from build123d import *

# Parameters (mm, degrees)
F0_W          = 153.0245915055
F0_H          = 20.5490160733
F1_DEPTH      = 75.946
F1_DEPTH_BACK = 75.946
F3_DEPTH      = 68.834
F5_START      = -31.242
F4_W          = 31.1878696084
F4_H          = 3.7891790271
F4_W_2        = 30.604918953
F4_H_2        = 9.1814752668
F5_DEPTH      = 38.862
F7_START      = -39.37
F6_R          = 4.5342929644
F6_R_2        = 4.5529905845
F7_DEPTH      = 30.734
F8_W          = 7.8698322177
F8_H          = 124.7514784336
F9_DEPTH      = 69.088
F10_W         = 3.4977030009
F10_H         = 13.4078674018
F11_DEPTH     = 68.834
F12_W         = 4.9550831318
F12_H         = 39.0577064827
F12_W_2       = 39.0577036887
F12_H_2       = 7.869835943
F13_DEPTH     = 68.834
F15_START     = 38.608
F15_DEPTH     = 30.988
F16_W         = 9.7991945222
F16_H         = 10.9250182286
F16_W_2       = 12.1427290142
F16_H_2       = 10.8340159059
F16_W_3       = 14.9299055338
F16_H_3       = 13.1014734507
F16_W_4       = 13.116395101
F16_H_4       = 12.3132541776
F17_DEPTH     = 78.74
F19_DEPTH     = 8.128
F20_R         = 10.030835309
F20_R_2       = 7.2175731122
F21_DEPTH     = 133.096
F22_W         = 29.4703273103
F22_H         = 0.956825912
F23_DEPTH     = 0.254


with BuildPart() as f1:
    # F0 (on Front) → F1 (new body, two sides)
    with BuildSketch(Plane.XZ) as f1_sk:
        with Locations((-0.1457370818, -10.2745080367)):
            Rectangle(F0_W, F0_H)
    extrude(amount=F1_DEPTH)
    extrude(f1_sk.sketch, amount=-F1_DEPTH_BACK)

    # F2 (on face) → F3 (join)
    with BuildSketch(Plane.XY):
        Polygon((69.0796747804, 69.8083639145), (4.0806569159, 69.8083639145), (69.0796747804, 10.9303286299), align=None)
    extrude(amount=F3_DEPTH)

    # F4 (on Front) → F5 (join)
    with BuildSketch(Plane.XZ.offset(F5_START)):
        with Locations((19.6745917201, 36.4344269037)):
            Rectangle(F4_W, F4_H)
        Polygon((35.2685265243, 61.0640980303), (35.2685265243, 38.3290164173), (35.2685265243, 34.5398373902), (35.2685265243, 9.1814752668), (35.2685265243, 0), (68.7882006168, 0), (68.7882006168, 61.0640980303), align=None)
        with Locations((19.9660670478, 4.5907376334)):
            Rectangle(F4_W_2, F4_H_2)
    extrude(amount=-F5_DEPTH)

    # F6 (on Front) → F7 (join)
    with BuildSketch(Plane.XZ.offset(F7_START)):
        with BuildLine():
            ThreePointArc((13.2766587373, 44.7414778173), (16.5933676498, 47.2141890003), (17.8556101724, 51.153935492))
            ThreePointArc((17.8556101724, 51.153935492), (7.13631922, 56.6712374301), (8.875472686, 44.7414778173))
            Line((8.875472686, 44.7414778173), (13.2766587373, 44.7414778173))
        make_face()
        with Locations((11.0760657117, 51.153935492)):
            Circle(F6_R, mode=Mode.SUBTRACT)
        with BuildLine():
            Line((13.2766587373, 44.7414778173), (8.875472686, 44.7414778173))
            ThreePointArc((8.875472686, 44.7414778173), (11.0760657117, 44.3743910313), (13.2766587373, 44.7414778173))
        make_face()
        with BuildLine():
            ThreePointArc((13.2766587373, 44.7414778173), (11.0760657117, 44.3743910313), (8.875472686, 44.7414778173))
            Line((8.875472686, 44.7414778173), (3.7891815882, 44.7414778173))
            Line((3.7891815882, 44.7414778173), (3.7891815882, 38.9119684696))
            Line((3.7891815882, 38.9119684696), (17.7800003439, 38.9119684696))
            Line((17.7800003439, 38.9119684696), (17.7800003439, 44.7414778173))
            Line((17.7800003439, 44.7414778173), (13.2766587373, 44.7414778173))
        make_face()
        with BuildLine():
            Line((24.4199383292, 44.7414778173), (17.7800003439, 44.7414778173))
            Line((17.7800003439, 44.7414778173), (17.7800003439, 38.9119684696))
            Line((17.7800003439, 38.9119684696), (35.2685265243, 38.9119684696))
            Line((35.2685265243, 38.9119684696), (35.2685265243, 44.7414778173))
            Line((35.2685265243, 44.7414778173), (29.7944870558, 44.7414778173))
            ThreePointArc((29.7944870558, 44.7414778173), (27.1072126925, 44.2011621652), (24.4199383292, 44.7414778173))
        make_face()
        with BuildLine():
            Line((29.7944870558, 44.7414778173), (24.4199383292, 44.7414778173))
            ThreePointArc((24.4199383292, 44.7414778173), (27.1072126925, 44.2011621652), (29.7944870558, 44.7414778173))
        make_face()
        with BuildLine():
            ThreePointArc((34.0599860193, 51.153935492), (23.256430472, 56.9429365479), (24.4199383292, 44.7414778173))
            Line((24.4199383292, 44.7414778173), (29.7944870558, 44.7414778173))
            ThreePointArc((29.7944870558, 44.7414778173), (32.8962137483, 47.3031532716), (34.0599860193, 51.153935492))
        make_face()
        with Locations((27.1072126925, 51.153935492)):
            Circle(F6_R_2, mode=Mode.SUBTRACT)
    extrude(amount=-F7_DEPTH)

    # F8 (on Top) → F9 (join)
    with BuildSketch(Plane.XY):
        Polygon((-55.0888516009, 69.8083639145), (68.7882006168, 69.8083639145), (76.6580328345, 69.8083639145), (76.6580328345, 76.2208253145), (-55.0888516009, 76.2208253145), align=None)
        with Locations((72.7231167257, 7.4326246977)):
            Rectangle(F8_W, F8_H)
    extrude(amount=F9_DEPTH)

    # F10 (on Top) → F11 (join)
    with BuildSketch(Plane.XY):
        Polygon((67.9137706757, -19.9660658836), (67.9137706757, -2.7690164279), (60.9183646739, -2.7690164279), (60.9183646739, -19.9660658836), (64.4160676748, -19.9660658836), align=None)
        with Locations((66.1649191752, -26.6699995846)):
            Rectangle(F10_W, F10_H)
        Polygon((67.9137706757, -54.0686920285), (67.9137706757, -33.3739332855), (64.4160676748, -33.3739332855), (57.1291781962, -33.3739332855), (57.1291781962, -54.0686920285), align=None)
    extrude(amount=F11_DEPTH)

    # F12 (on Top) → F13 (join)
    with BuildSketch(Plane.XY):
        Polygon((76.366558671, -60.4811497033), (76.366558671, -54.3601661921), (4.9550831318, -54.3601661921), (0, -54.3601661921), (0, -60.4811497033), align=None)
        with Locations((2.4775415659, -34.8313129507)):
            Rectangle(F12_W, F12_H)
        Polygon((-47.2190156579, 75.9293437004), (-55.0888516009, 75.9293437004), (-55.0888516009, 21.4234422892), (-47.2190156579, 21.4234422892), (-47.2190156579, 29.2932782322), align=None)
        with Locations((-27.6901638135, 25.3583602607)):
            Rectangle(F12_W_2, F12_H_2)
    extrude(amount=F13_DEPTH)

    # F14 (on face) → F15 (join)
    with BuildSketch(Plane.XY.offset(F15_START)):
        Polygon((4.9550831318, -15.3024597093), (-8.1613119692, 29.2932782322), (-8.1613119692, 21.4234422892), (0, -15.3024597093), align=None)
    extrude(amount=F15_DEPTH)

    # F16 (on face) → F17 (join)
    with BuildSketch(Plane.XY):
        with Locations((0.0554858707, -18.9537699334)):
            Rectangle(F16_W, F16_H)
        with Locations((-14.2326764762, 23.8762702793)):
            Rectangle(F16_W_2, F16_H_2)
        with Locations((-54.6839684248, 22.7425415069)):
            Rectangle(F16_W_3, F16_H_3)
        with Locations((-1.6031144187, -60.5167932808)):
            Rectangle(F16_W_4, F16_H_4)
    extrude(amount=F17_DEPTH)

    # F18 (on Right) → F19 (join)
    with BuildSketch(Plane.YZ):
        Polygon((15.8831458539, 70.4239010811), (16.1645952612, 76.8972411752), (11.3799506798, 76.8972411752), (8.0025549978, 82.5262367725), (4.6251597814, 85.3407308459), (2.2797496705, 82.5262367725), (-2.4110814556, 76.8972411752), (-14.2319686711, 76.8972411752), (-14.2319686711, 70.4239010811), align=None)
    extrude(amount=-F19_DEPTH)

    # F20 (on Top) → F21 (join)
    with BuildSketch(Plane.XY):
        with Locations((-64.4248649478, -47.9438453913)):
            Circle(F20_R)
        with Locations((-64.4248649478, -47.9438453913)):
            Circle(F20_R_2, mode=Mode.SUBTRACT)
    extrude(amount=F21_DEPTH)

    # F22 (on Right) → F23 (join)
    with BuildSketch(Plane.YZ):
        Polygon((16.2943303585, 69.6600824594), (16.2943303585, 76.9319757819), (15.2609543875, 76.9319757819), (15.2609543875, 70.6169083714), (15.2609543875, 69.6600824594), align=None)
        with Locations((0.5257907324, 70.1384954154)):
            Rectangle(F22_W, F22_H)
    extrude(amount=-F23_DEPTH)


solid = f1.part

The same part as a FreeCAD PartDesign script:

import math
import FreeCAD as App
import Part
import Sketcher
from FreeCAD import Vector
Q = App.Units.Quantity


def add_polygon(sketch, points):
    """Adds a closed chain of lines whose ends are joined by coincident constraints."""
    first, n = sketch.GeometryCount, len(points)
    for a, b in zip(points, points[1:] + points[:1]):
        sketch.addGeometry(Part.LineSegment(App.Vector(*a, 0), App.Vector(*b, 0)), False)
    for i in range(n):
        sketch.addConstraint(Sketcher.Constraint("Coincident", first + i, 2, first + (i + 1) % n, 1))

doc = App.newDocument("Part")
params = doc.addObject("Spreadsheet::Sheet", "Params")
for row, (alias, value) in enumerate([
    ("pad1_length", "2.99 in"),
    ("pad1_length2", "2.99 in"),
    ("pad2_length", "2.71 in"),
    ("pad3_length", "1.53 in"),
    ("pad4_length", "1.21 in"),
    ("pad5_length", "2.72 in"),
    ("pad6_length", "2.71 in"),
    ("pad7_length", "2.71 in"),
    ("pad8_length", "1.22 in"),
    ("pad9_length", "3.1 in"),
    ("pad10_length", "0.32 in"),
    ("pad11_length", "5.24 in"),
    ("pad12_length", "0.01 in"),
], start=1):
    params.set(f"A{row}", alias)
    params.set(f"B{row}", "=" + value)
    params.setAlias(f"B{row}", alias)

body = doc.addObject("PartDesign::Body", "Body")

# Sketch on XZ plane
sketch1 = body.newObject("Sketcher::SketchObject", "Sketch")
sketch1.AttachmentSupport = (doc.getObject("XZ_Plane"), [""])
sketch1.MapMode = "FlatFace"
add_polygon(sketch1, [(-77, 0), (-77, -21), (76, -21), (76, 0)])  # lines 0-3
sketch1.addConstraint([
    Sketcher.Constraint("Vertical", 0),
    Sketcher.Constraint("Horizontal", 1),
    Sketcher.Constraint("Vertical", 2),
    Sketcher.Constraint("Horizontal", 3),
    Sketcher.Constraint("PointOnObject", 2, 2, -1),
    Sketcher.Constraint("DistanceX", 1, 1, 1, 2, Q("153.024592 mm")),
    Sketcher.Constraint("DistanceY", 0, 2, 0, 1, Q("20.549016 mm")),
    Sketcher.Constraint("DistanceX", -1, 1, 1, 2, Q("76.366559 mm")),
])
pad1 = body.newObject("PartDesign::Pad", "Pad")
pad1.Profile = sketch1
pad1.Type = "TwoLengths"
pad1.setExpression("Length", "Params.pad1_length")
pad1.setExpression("Length2", "Params.pad1_length2")

# Sketch on XY plane
sketch2 = body.newObject("Sketcher::SketchObject", "Sketch001")
sketch2.AttachmentSupport = (doc.getObject("XY_Plane"), [""])
sketch2.MapMode = "FlatFace"
add_polygon(sketch2, [(69, 70), (4, 70), (69, 11)])  # lines 0-2
sketch2.addConstraint([
    Sketcher.Constraint("Horizontal", 0),
    Sketcher.Constraint("Vertical", 2),
    Sketcher.Constraint("Distance", 1, Q("87.701171 mm")),
    Sketcher.Constraint("DistanceX", 0, 2, 0, 1, Q("64.999018 mm")),
    Sketcher.Constraint("DistanceY", -1, 1, 1, 2, Q("10.930329 mm")),
    Sketcher.Constraint("DistanceX", -1, 1, 0, 2, Q("4.080657 mm")),
])
pad2 = body.newObject("PartDesign::Pad", "Pad001")
pad2.Profile = sketch2
pad2.setExpression("Length", "Params.pad2_length")

# Sketch on XZ plane
sketch3 = body.newObject("Sketcher::SketchObject", "Sketch002")
sketch3.AttachmentSupport = (doc.getObject("XZ_Plane"), [""])
sketch3.MapMode = "FlatFace"
sketch3.AttachmentOffset = App.Placement(Vector(0, 0, -1.23 * 25.4), App.Rotation())
add_polygon(sketch3, [(4.1, 38.3), (4.1, 34.5), (35.3, 34.5), (35.3, 9.2), (4.7, 9.2), (4.7, 0), (68.8, 0), (68.8, 61.1), (35.3, 61.1), (35.3, 38.3)])  # lines 0-9
sketch3.addConstraint([
    Sketcher.Constraint("Vertical", 0),
    Sketcher.Constraint("Horizontal", 1),
    Sketcher.Constraint("Vertical", 2),
    Sketcher.Constraint("Horizontal", 3),
    Sketcher.Constraint("Vertical", 4),
    Sketcher.Constraint("Horizontal", 5),
    Sketcher.Constraint("Vertical", 6),
    Sketcher.Constraint("Horizontal", 7),
    Sketcher.Constraint("Vertical", 8),
    Sketcher.Constraint("Horizontal", 9),
    Sketcher.Constraint("PointOnObject", 4, 2, -1),
    Sketcher.Constraint("Vertical", 2, 2, 7, 2),
    Sketcher.Constraint("DistanceY", 6, 1, 6, 2, Q("61.064098 mm")),
    Sketcher.Constraint("DistanceX", 1, 1, 1, 2, Q("31.18787 mm")),
    Sketcher.Constraint("DistanceX", 3, 2, 3, 1, Q("30.604919 mm")),
    Sketcher.Constraint("DistanceY", 0, 2, 0, 1, Q("3.789179 mm")),
    Sketcher.Constraint("DistanceY", 8, 2, 8, 1, Q("22.735082 mm")),
    Sketcher.Constraint("DistanceX", -1, 1, 5, 2, Q("68.788201 mm")),
    Sketcher.Constraint("DistanceX", 5, 1, 5, 2, Q("64.124593 mm")),
    Sketcher.Constraint("DistanceY", 2, 2, 2, 1, Q("25.358362 mm")),
])
pad3 = body.newObject("PartDesign::Pad", "Pad002")
pad3.Profile = sketch3
pad3.setExpression("Length", "Params.pad3_length")
pad3.Reversed = True

# Sketch on XZ plane
sketch4 = body.newObject("Sketcher::SketchObject", "Sketch003")
sketch4.AttachmentSupport = (doc.getObject("XZ_Plane"), [""])
sketch4.MapMode = "FlatFace"
sketch4.AttachmentOffset = App.Placement(Vector(0, 0, -1.55 * 25.4), App.Rotation())
sketch4.addGeometry([
    Part.ArcOfCircle(Part.Circle(Vector(11.1, 51.2, 0), Vector(0, 0, 1), 6.8), math.radians(-71), math.radians(0)),  # 0
    Part.ArcOfCircle(Part.Circle(Vector(11.1, 51.2, 0), Vector(0, 0, 1), 6.8), math.radians(0), math.radians(251)),  # 1
    Part.LineSegment(Vector(8.9, 44.7, 0), Vector(3.8, 44.7, 0)),  # 2
    Part.LineSegment(Vector(3.8, 44.7, 0), Vector(3.8, 38.9, 0)),  # 3
    Part.LineSegment(Vector(3.8, 38.9, 0), Vector(35.3, 38.9, 0)),  # 4
    Part.LineSegment(Vector(35.3, 38.9, 0), Vector(35.3, 44.7, 0)),  # 5
    Part.LineSegment(Vector(35.3, 44.7, 0), Vector(29.8, 44.7, 0)),  # 6
    Part.ArcOfCircle(Part.Circle(Vector(27.1, 51.2, 0), Vector(0, 0, 1), 7), math.radians(-67), math.radians(0)),  # 7
    Part.ArcOfCircle(Part.Circle(Vector(27.1, 51.2, 0), Vector(0, 0, 1), 7), math.radians(0), math.radians(247)),  # 8
    Part.LineSegment(Vector(24.4, 44.7, 0), Vector(13.3, 44.7, 0)),  # 9
    Part.Circle(Vector(11.1, 51.2, 0), Vector(0, 0, 1), 4.5),  # 10
    Part.Circle(Vector(27.1, 51.2, 0), Vector(0, 0, 1), 4.6),  # 11
], False)
sketch4.addConstraint([
    Sketcher.Constraint("Tangent", 0, 2, 1, 1),
    Sketcher.Constraint("Coincident", 1, 2, 2, 1),
    Sketcher.Constraint("Coincident", 2, 2, 3, 1),
    Sketcher.Constraint("Coincident", 3, 2, 4, 1),
    Sketcher.Constraint("Coincident", 4, 2, 5, 1),
    Sketcher.Constraint("Coincident", 5, 2, 6, 1),
    Sketcher.Constraint("Coincident", 6, 2, 7, 1),
    Sketcher.Constraint("Tangent", 7, 2, 8, 1),
    Sketcher.Constraint("Coincident", 8, 2, 9, 1),
    Sketcher.Constraint("Coincident", 9, 2, 0, 1),
    Sketcher.Constraint("Horizontal", 2),
    Sketcher.Constraint("Vertical", 3),
    Sketcher.Constraint("Horizontal", 4),
    Sketcher.Constraint("Vertical", 5),
    Sketcher.Constraint("Horizontal", 6),
    Sketcher.Constraint("Horizontal", 9),
    Sketcher.Constraint("Coincident", 10, 3, 0, 3),
    Sketcher.Constraint("Coincident", 11, 3, 7, 3),
    Sketcher.Constraint("Equal", 0, 1),
    Sketcher.Constraint("Equal", 7, 8),
    Sketcher.Constraint("Horizontal", 1, 3, 7, 3),
    Sketcher.Constraint("Horizontal", 11, 3, 0, 2),
    Sketcher.Constraint("Horizontal", 2, 2, 5, 2),
    Sketcher.Constraint("Horizontal", 0, 2, 7, 2),
    Sketcher.Constraint("Horizontal", 6, 2, 8, 2),
    Sketcher.Constraint("Diameter", 11, Q("9.105981 mm")),
    Sketcher.Constraint("Diameter", 10, Q("9.068586 mm")),
    Sketcher.Constraint("Radius", 0, Q("6.779544 mm")),
    Sketcher.Constraint("Radius", 7, Q("6.952773 mm")),
    Sketcher.Constraint("DistanceX", 2, 2, 2, 1, Q("5.086291 mm")),
    Sketcher.Constraint("DistanceX", 6, 2, 6, 1, Q("5.474039 mm")),
    Sketcher.Constraint("DistanceX", 9, 2, 9, 1, Q("11.14328 mm")),
    Sketcher.Constraint("DistanceY", 3, 2, 3, 1, Q("5.829509 mm")),
    Sketcher.Constraint("DistanceX", 6, 2, 7, 2, Q("4.265499 mm")),
    Sketcher.Constraint("DistanceX", -1, 1, 0, 2, Q("17.85561 mm")),
    Sketcher.Constraint("DistanceY", -1, 1, 3, 2, Q("38.911968 mm")),
])
pad4 = body.newObject("PartDesign::Pad", "Pad003")
pad4.Profile = sketch4
pad4.setExpression("Length", "Params.pad4_length")
pad4.Reversed = True

# Sketch on XY plane
sketch5 = body.newObject("Sketcher::SketchObject", "Sketch004")
sketch5.AttachmentSupport = (doc.getObject("XY_Plane"), [""])
sketch5.MapMode = "FlatFace"
add_polygon(sketch5, [(-55, 70), (69, 70), (69, -55), (77, -55), (77, 76), (-55, 76)])  # lines 0-5
sketch5.addConstraint([
    Sketcher.Constraint("Horizontal", 0),
    Sketcher.Constraint("Vertical", 1),
    Sketcher.Constraint("Horizontal", 2),
    Sketcher.Constraint("Vertical", 3),
    Sketcher.Constraint("Horizontal", 4),
    Sketcher.Constraint("Vertical", 5),
    Sketcher.Constraint("DistanceY", 1, 2, 1, 1, Q("124.751478 mm")),
    Sketcher.Constraint("DistanceY", 3, 1, 3, 2, Q("131.16394 mm")),
    Sketcher.Constraint("DistanceX", -1, 1, 0, 2, Q("68.788201 mm")),
    Sketcher.Constraint("DistanceX", 0, 1, 0, 2, Q("123.877052 mm")),
    Sketcher.Constraint("DistanceX", 2, 1, 2, 2, Q("7.869832 mm")),
    Sketcher.Constraint("DistanceY", -1, 1, 0, 2, Q("69.808364 mm")),
])
pad5 = body.newObject("PartDesign::Pad", "Pad004")
pad5.Profile = sketch5
pad5.setExpression("Length", "Params.pad5_length")

# Sketch on XY plane
sketch6 = body.newObject("Sketcher::SketchObject", "Sketch005")
sketch6.AttachmentSupport = (doc.getObject("XY_Plane"), [""])
sketch6.MapMode = "FlatFace"
add_polygon(sketch6, [(67.9, -20), (67.9, -2.8), (60.9, -2.8), (60.9, -20), (64.4, -20), (64.4, -33.4), (57.1, -33.4), (57.1, -54.1), (67.9, -54.1), (67.9, -33.4)])  # lines 0-9
sketch6.addConstraint([
    Sketcher.Constraint("Vertical", 0),
    Sketcher.Constraint("Horizontal", 1),
    Sketcher.Constraint("Vertical", 2),
    Sketcher.Constraint("Horizontal", 3),
    Sketcher.Constraint("Vertical", 4),
    Sketcher.Constraint("Horizontal", 5),
    Sketcher.Constraint("Vertical", 6),
    Sketcher.Constraint("Horizontal", 7),
    Sketcher.Constraint("Vertical", 8),
    Sketcher.Constraint("Vertical", 9),
    Sketcher.Constraint("Horizontal", 5, 2, 8, 2),
    Sketcher.Constraint("Horizontal", 3, 2, 9, 2),
    Sketcher.Constraint("DistanceX", 5, 2, 5, 1, Q("7.286889 mm")),
    Sketcher.Constraint("DistanceY", 0, 1, 0, 2, Q("17.197049 mm")),
    Sketcher.Constraint("DistanceY", 6, 2, 6, 1, Q("20.694759 mm")),
    Sketcher.Constraint("DistanceX", 1, 2, 1, 1, Q("6.995406 mm")),
    Sketcher.Constraint("DistanceX", 3, 1, 3, 2, Q("3.497703 mm")),
    Sketcher.Constraint("DistanceY", 4, 2, 4, 1, Q("13.407867 mm")),
    Sketcher.Constraint("DistanceX", -1, 1, 0, 2, Q("67.913771 mm")),
    Sketcher.Constraint("DistanceY", 0, 2, -1, 1, Q("2.769016 mm")),
])
pad6 = body.newObject("PartDesign::Pad", "Pad005")
pad6.Profile = sketch6
pad6.setExpression("Length", "Params.pad6_length")

# Sketch on XY plane
sketch7 = body.newObject("Sketcher::SketchObject", "Sketch006")
sketch7.AttachmentSupport = (doc.getObject("XY_Plane"), [""])
sketch7.MapMode = "FlatFace"
add_polygon(sketch7, [(76.4, -60.5), (76.4, -54.4), (5, -54.4), (5, -15.3), (0, -15.3), (0, -60.5)])  # lines 0-5
add_polygon(sketch7, [(-47.2, 75.9), (-55.1, 75.9), (-55.1, 21.4), (-8.2, 21.4), (-8.2, 29.3), (-47.2, 29.3)])  # lines 6-11
sketch7.addConstraint([
    Sketcher.Constraint("Vertical", 0),
    Sketcher.Constraint("Horizontal", 1),
    Sketcher.Constraint("Vertical", 2),
    Sketcher.Constraint("Horizontal", 3),
    Sketcher.Constraint("Vertical", 4),
    Sketcher.Constraint("Horizontal", 5),
    Sketcher.Constraint("Horizontal", 6),
    Sketcher.Constraint("Vertical", 7),
    Sketcher.Constraint("Horizontal", 8),
    Sketcher.Constraint("Vertical", 9),
    Sketcher.Constraint("Horizontal", 10),
    Sketcher.Constraint("Vertical", 11),
    Sketcher.Constraint("PointOnObject", 3, 2, -2),
    Sketcher.Constraint("Equal", 6, 9),
    Sketcher.Constraint("DistanceY", 7, 2, 7, 1, Q("54.505901 mm")),
    Sketcher.Constraint("DistanceX", 5, 1, 5, 2, Q("76.366559 mm")),
    Sketcher.Constraint("DistanceX", 8, 1, 8, 2, Q("46.92754 mm")),
    Sketcher.Constraint("DistanceY", 4, 2, 4, 1, Q("45.17869 mm")),
    Sketcher.Constraint("DistanceY", 3, 2, 7, 2, Q("36.725902 mm")),
    Sketcher.Constraint("DistanceX", 1, 2, 1, 1, Q("71.411476 mm")),
    Sketcher.Constraint("DistanceX", 6, 2, 6, 1, Q("7.869836 mm")),
    Sketcher.Constraint("DistanceY", 0, 1, 0, 2, Q("6.120984 mm")),
    Sketcher.Constraint("DistanceY", 2, 2, -1, 1, Q("15.30246 mm")),
    Sketcher.Constraint("DistanceX", 6, 2, -1, 1, Q("55.088852 mm")),
])
pad7 = body.newObject("PartDesign::Pad", "Pad006")
pad7.Profile = sketch7
pad7.setExpression("Length", "Params.pad7_length")

# Sketch on XY plane
sketch8 = body.newObject("Sketcher::SketchObject", "Sketch007")
sketch8.AttachmentSupport = (doc.getObject("XY_Plane"), [""])
sketch8.MapMode = "FlatFace"
sketch8.AttachmentOffset = App.Placement(Vector(0, 0, 1.52 * 25.4), App.Rotation())
add_polygon(sketch8, [(5, -15.3), (-8.2, 29.3), (-8.2, 21.4), (0, -15.3)])  # lines 0-3
sketch8.addConstraint([
    Sketcher.Constraint("Vertical", 1),
    Sketcher.Constraint("Horizontal", 3),
    Sketcher.Constraint("PointOnObject", 2, 2, -2),
    Sketcher.Constraint("DistanceY", 2, 2, 1, 2, Q("36.725902 mm")),
    Sketcher.Constraint("DistanceX", 3, 1, 3, 2, Q("4.955083 mm")),
    Sketcher.Constraint("DistanceY", 1, 2, 1, 1, Q("7.869836 mm")),
    Sketcher.Constraint("DistanceX", 0, 2, -1, 1, Q("8.161312 mm")),
    Sketcher.Constraint("DistanceY", -1, 1, 0, 2, Q("29.293278 mm")),
])
pad8 = body.newObject("PartDesign::Pad", "Pad007")
pad8.Profile = sketch8
pad8.setExpression("Length", "Params.pad8_length")

# Sketch on XY plane
sketch9 = body.newObject("Sketcher::SketchObject", "Sketch008")
sketch9.AttachmentSupport = (doc.getObject("XY_Plane"), [""])
sketch9.MapMode = "FlatFace"
add_polygon(sketch9, [(-5, -13), (-5, -24), (5, -24), (5, -13)])  # lines 0-3
add_polygon(sketch9, [(-20, 29), (-20, 18), (-8, 18), (-8, 29)])  # lines 4-7
add_polygon(sketch9, [(-62, 29), (-62, 16), (-47, 16), (-47, 29)])  # lines 8-11
add_polygon(sketch9, [(-8, -54), (-8, -67), (5, -67), (5, -54)])  # lines 12-15
sketch9.addConstraint([
    Sketcher.Constraint("Vertical", 0),
    Sketcher.Constraint("Horizontal", 1),
    Sketcher.Constraint("Vertical", 2),
    Sketcher.Constraint("Horizontal", 3),
    Sketcher.Constraint("Vertical", 4),
    Sketcher.Constraint("Horizontal", 5),
    Sketcher.Constraint("Vertical", 6),
    Sketcher.Constraint("Horizontal", 7),
    Sketcher.Constraint("Vertical", 8),
    Sketcher.Constraint("Horizontal", 9),
    Sketcher.Constraint("Vertical", 10),
    Sketcher.Constraint("Horizontal", 11),
    Sketcher.Constraint("Vertical", 12),
    Sketcher.Constraint("Horizontal", 13),
    Sketcher.Constraint("Vertical", 14),
    Sketcher.Constraint("Horizontal", 15),
    Sketcher.Constraint("Horizontal", 7, 2, 10, 2),
    Sketcher.Constraint("Vertical", 6, 2, 12, 2),
    Sketcher.Constraint("Vertical", 2, 2, 13, 2),
    Sketcher.Constraint("DistanceX", 5, 1, 5, 2, Q("12.142729 mm")),
    Sketcher.Constraint("DistanceY", 0, 2, 0, 1, Q("10.925018 mm")),
    Sketcher.Constraint("DistanceX", 5, 2, 3, 2, Q("3.317201 mm")),
    Sketcher.Constraint("DistanceX", 1, 1, 1, 2, Q("9.799195 mm")),
    Sketcher.Constraint("DistanceX", 9, 1, 9, 2, Q("14.929906 mm")),
    Sketcher.Constraint("DistanceY", 4, 2, 4, 1, Q("10.834016 mm")),
    Sketcher.Constraint("DistanceY", 8, 2, 8, 1, Q("13.101473 mm")),
    Sketcher.Constraint("DistanceY", 12, 2, 12, 1, Q("12.313254 mm")),
    Sketcher.Constraint("DistanceX", 0, 2, -1, 1, Q("4.844111 mm")),
    Sketcher.Constraint("DistanceY", 0, 2, -1, 1, Q("24.416279 mm")),
    Sketcher.Constraint("DistanceY", -1, 1, 6, 2, Q("29.293278 mm")),
    Sketcher.Constraint("DistanceX", 8, 2, -1, 1, Q("62.148921 mm")),
    Sketcher.Constraint("DistanceY", 12, 2, -1, 1, Q("66.67342 mm")),
])
pad9 = body.newObject("PartDesign::Pad", "Pad008")
pad9.Profile = sketch9
pad9.setExpression("Length", "Params.pad9_length")

# Sketch on YZ plane
sketch10 = body.newObject("Sketcher::SketchObject", "Sketch009")
sketch10.AttachmentSupport = (doc.getObject("YZ_Plane"), [""])
sketch10.MapMode = "FlatFace"
add_polygon(sketch10, [(15.883146, 70.423901), (16.164595, 76.897241), (11.379951, 76.897241), (8.002555, 82.526237), (4.62516, 85.340731), (2.27975, 82.526237), (-2.411081, 76.897241), (-14.231969, 76.897241), (-14.231969, 70.423901)])  # lines 0-8
sketch10.addConstraint([
    Sketcher.Constraint("Horizontal", 1),
    Sketcher.Constraint("Horizontal", 6),
    Sketcher.Constraint("Vertical", 7),
    Sketcher.Constraint("Horizontal", 8),
    Sketcher.Constraint("DistanceY", 7, 2, 7, 1, Q("6.47334 mm")),
    Sketcher.Constraint("DistanceY", -1, 1, 7, 2, Q("70.423901 mm")),
    Sketcher.Constraint("DistanceX", 4, 2, 1, 2, Q("9.100201 mm")),
    Sketcher.Constraint("Distance", 2, Q("6.56448 mm")),
    Sketcher.Constraint("Distance", 4, Q("3.663649 mm")),
    Sketcher.Constraint("Distance", 5, Q("7.327311 mm")),
    Sketcher.Constraint("DistanceX", 1, 2, 1, 1, Q("4.784645 mm")),
    Sketcher.Constraint("DistanceX", 6, 2, 6, 1, Q("11.820887 mm")),
    Sketcher.Constraint("DistanceX", 8, 1, 8, 2, Q("30.115115 mm")),
    Sketcher.Constraint("DistanceY", -1, 1, 0, 2, Q("76.897241 mm")),
    Sketcher.Constraint("DistanceX", -1, 1, 1, 2, Q("11.379951 mm")),
    Sketcher.Constraint("DistanceX", -1, 1, 3, 2, Q("4.62516 mm")),
    Sketcher.Constraint("DistanceY", -1, 1, 3, 2, Q("85.340731 mm")),
    Sketcher.Constraint("DistanceX", 2, 2, 0, 2, Q("8.16204 mm")),
])
pad10 = body.newObject("PartDesign::Pad", "Pad009")
pad10.Profile = sketch10
pad10.setExpression("Length", "Params.pad10_length")
pad10.Reversed = True

# Sketch on XY plane
sketch11 = body.newObject("Sketcher::SketchObject", "Sketch010")
sketch11.AttachmentSupport = (doc.getObject("XY_Plane"), [""])
sketch11.MapMode = "FlatFace"
sketch11.addGeometry([
    Part.Circle(Vector(-64, -48, 0), Vector(0, 0, 1), 10),
    Part.Circle(Vector(-64, -48, 0), Vector(0, 0, 1), 7),
], False)
sketch11.addConstraint([
    Sketcher.Constraint("Coincident", 1, 3, 0, 3),
    Sketcher.Constraint("Diameter", 0, Q("20.061671 mm")),
    Sketcher.Constraint("Diameter", 1, Q("14.435146 mm")),
    Sketcher.Constraint("DistanceX", 0, 3, -1, 1, Q("64.424865 mm")),
    Sketcher.Constraint("DistanceY", 0, 3, -1, 1, Q("47.943845 mm")),
])
pad11 = body.newObject("PartDesign::Pad", "Pad010")
pad11.Profile = sketch11
pad11.setExpression("Length", "Params.pad11_length")

# Sketch on YZ plane
sketch12 = body.newObject("Sketcher::SketchObject", "Sketch011")
sketch12.AttachmentSupport = (doc.getObject("YZ_Plane"), [""])
sketch12.MapMode = "FlatFace"
add_polygon(sketch12, [(16.3, 69.7), (16.3, 76.9), (15.3, 76.9), (15.3, 70.6), (-14.2, 70.6), (-14.2, 69.7)])  # lines 0-5
sketch12.addConstraint([
    Sketcher.Constraint("Vertical", 0),
    Sketcher.Constraint("Horizontal", 1),
    Sketcher.Constraint("Vertical", 2),
    Sketcher.Constraint("Horizontal", 3),
    Sketcher.Constraint("Vertical", 4),
    Sketcher.Constraint("Horizontal", 5),
    Sketcher.Constraint("DistanceX", 1, 2, 1, 1, Q("1.033376 mm")),
    Sketcher.Constraint("DistanceX", 3, 2, 3, 1, Q("29.470327 mm")),
    Sketcher.Constraint("DistanceY", 0, 1, 0, 2, Q("7.271893 mm")),
    Sketcher.Constraint("DistanceY", 2, 2, 2, 1, Q("6.315067 mm")),
    Sketcher.Constraint("DistanceX", -1, 1, 0, 2, Q("16.29433 mm")),
    Sketcher.Constraint("DistanceY", -1, 1, 2, 2, Q("70.616908 mm")),
])
pad12 = body.newObject("PartDesign::Pad", "Pad011")
pad12.Profile = sketch12
pad12.setExpression("Length", "Params.pad12_length")
pad12.Reversed = True

doc.recompute()
